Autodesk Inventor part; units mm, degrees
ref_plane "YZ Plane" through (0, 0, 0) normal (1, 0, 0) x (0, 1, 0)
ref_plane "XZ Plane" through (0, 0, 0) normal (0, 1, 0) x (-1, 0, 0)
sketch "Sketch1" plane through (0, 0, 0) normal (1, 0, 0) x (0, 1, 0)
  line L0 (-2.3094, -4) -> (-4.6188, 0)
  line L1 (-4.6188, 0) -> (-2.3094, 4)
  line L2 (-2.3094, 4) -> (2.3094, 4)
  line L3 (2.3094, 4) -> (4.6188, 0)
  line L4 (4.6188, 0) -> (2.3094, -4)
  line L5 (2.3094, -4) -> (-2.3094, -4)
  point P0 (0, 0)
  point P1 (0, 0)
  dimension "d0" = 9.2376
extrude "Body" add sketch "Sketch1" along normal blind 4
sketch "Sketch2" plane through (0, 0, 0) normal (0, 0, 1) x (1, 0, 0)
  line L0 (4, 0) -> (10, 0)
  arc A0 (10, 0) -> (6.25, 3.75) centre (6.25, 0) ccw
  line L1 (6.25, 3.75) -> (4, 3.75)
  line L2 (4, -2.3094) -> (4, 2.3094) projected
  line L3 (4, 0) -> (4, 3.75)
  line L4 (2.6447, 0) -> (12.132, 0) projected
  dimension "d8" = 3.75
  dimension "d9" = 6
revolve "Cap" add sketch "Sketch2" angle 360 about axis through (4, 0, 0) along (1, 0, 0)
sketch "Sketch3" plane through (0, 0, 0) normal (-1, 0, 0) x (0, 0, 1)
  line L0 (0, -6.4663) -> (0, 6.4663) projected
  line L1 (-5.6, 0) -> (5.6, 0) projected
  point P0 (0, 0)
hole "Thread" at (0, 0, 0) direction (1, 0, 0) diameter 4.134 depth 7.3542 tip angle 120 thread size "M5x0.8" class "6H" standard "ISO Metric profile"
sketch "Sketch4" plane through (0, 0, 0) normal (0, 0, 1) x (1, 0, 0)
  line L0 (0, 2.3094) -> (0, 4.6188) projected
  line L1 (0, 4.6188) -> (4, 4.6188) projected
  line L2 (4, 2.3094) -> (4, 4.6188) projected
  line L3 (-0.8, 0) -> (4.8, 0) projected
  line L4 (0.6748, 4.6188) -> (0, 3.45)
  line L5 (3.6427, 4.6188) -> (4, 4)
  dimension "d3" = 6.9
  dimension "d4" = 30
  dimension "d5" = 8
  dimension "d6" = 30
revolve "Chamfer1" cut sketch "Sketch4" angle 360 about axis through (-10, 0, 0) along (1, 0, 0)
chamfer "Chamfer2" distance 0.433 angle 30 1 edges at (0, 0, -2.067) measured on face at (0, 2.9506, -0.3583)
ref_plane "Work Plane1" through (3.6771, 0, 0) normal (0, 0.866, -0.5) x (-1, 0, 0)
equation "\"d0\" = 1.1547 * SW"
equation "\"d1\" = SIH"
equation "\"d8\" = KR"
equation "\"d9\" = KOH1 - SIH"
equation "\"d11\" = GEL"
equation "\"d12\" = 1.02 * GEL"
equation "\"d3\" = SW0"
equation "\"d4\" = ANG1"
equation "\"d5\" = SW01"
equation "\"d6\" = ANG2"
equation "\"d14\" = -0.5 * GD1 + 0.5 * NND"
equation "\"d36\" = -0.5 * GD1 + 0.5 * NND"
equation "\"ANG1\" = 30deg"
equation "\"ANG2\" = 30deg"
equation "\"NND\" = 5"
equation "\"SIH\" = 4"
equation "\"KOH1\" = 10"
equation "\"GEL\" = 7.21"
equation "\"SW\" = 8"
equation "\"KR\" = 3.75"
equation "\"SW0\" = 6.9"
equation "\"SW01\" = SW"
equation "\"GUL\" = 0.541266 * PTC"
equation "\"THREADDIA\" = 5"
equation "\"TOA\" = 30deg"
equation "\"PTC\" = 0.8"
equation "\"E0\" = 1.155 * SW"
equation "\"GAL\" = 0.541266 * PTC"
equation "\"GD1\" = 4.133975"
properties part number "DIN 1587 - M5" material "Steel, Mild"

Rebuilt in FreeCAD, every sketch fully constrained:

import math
import FreeCAD as App
import Part
import Sketcher
from FreeCAD import Vector
Q = App.Units.Quantity


def edges_at(feature, points):
    """Names of the edges that pass closest to the given points."""
    edges = feature.Shape.Edges
    near = lambda p: min(range(len(edges)), key=lambda i: edges[i].distToShape(Part.Vertex(*p))[0])
    return sorted({f"Edge{near(p) + 1}" for p in points})


def add_polygon(sketch, points):
    """Adds a closed chain of lines whose ends are joined by coincident constraints."""
    first, n = sketch.GeometryCount, len(points)
    for a, b in zip(points, points[1:] + points[:1]):
        sketch.addGeometry(Part.LineSegment(App.Vector(*a, 0), App.Vector(*b, 0)), False)
    for i in range(n):
        sketch.addConstraint(Sketcher.Constraint("Coincident", first + i, 2, first + (i + 1) % n, 1))

doc = App.newDocument("Part")
params = doc.addObject("Spreadsheet::Sheet", "Params")
for row, (alias, value) in enumerate([
    ("pad1_length", "4 mm"),
    ("sketch2_width", "6 mm"),
    ("sketch2_radius", "3.75 mm"),
    ("revolution_angle", "360 deg"),
    ("hole_diameter", "4.134 mm"),
    ("hole_depth", "7.3542 mm"),
    ("groove_angle", "360 deg"),
    ("chamfer_size", "0.433 mm"),
], start=1):
    params.set(f"A{row}", alias)
    params.set(f"B{row}", "=" + value)
    params.setAlias(f"B{row}", alias)

body = doc.addObject("PartDesign::Body", "Body")

sketch1 = body.newObject("Sketcher::SketchObject", "Sketch")
sketch1.AttachmentSupport = (doc.getObject("YZ_Plane"), [""])
sketch1.MapMode = "FlatFace"
add_polygon(sketch1, [(-4.6188, 0), (-2.3094, -4), (2.3094, -4), (4.6188, 0), (2.3094, 4), (-2.3094, 4)])
sketch1.addConstraint([
    Sketcher.Constraint("Horizontal", 1),
    Sketcher.Constraint("Horizontal", 4),
    Sketcher.Constraint("Symmetric", 0, 2, 3, 2, -1, 1),
    Sketcher.Constraint("Symmetric", 2, 2, 5, 2, -1, 1),
    Sketcher.Constraint("PointOnObject", 2, 2, -1),
    Sketcher.Constraint("Parallel", 2, 5),
    Sketcher.Constraint("Vertical", 1, 2, 3, 2),
    Sketcher.Constraint("Angle", 0, Q("-60 deg")),
    Sketcher.Constraint("DistanceY", 0, 2, -1, 1, Q("4 mm")),
    Sketcher.Constraint("DistanceX", 5, 2, 2, 2, Q("9.2376 mm")),
])
pad1 = body.newObject("PartDesign::Pad", "Pad")
pad1.Profile = sketch1
pad1.setExpression("Length", "Params.pad1_length")

sketch2 = body.newObject("Sketcher::SketchObject", "Sketch001")
sketch2.AttachmentSupport = (doc.getObject("XY_Plane"), [""])
sketch2.MapMode = "FlatFace"
sketch2.addGeometry([
    Part.LineSegment(Vector(4, 3.75, 0), Vector(4, 0, 0)),
    Part.LineSegment(Vector(4, 0, 0), Vector(10, 0, 0)),
    Part.ArcOfCircle(Part.Circle(Vector(6.25, 0, 0), Vector(0, 0, 1), 3.75), math.radians(0), math.radians(90)),
    Part.LineSegment(Vector(6.25, 3.75, 0), Vector(4, 3.75, 0)),
], False)
sketch2.addConstraint([
    Sketcher.Constraint("Coincident", 0, 2, 1, 1),
    Sketcher.Constraint("Coincident", 1, 2, 2, 1),
    Sketcher.Constraint("Tangent", 2, 2, 3, 1),
    Sketcher.Constraint("Coincident", 3, 2, 0, 1),
    Sketcher.Constraint("Vertical", 0),
    Sketcher.Constraint("Horizontal", 1),
    Sketcher.Constraint("Horizontal", 3),
    Sketcher.Constraint("PointOnObject", 2, 3, -1),
    Sketcher.Constraint("PointOnObject", 0, 2, -1),
    Sketcher.Constraint("DistanceX", 1, 1, 1, 2, Q("6 mm")),
    Sketcher.Constraint("Radius", 2, Q("3.75 mm")),
    Sketcher.Constraint("DistanceX", -1, 1, 0, 2, Q("4 mm")),
])
sketch2.setExpression("Constraints[9]", "Params.sketch2_width")
sketch2.setExpression("Constraints[10]", "Params.sketch2_radius")
revolution = body.newObject("PartDesign::Revolution", "Revolution")
revolution.Profile = sketch2
revolution.ReferenceAxis = (sketch2, ["H_Axis"])
revolution.setExpression("Angle", "Params.revolution_angle")

sketch3 = body.newObject("Sketcher::SketchObject", "Sketch002")
sketch3.AttachmentSupport = (doc.getObject("YZ_Plane"), [""])
sketch3.MapMode = "FlatFace"
sketch3.addGeometry(Part.Circle(Vector(0, 0, 0), Vector(0, 0, 1), 2.067), False)
sketch3.addConstraint([
    Sketcher.Constraint("Coincident", 0, 3, -1, 1),
    Sketcher.Constraint("Diameter", 0, Q("4.134 mm")),
])
doc.recompute()
hole = body.newObject("PartDesign::Hole", "Hole")
hole.Profile = sketch3
hole.ThreadType = "None"
hole.setExpression("Diameter", "Params.hole_diameter")
hole.DepthType = "Dimension"
hole.setExpression("Depth", "Params.hole_depth")
hole.DrillPoint = "Angled"
hole.DrillPointAngle = 120
hole.Reversed = True

sketch4 = body.newObject("Sketcher::SketchObject", "Sketch003")
sketch4.AttachmentSupport = (doc.getObject("XY_Plane"), [""])
sketch4.MapMode = "FlatFace"
add_polygon(sketch4, [(4, 4.6188), (3.6427, 4.6188), (4, 4)])
add_polygon(sketch4, [(0, 4.6188), (0, 3.45), (0.6748, 4.6188)])
sketch4.addConstraint([
    Sketcher.Constraint("Horizontal", 0),
    Sketcher.Constraint("Vertical", 2),
    Sketcher.Constraint("Vertical", 3),
    Sketcher.Constraint("Horizontal", 5),
    Sketcher.Constraint("PointOnObject", 3, 2, -2),
    Sketcher.Constraint("Horizontal", 2, 2, 4, 2),
    Sketcher.Constraint("Angle", 4, Q("60.0003 deg")),
    Sketcher.Constraint("DistanceX", -1, 1, 1, 2, Q("4 mm")),
    Sketcher.Constraint("DistanceY", -1, 1, 1, 2, Q("4 mm")),
    Sketcher.Constraint("DistanceY", -1, 1, 3, 2, Q("3.45 mm")),
    Sketcher.Constraint("DistanceX", 0, 2, 0, 1, Q("0.3573 mm")),
    Sketcher.Constraint("DistanceX", 5, 2, 5, 1, Q("0.6748 mm")),
])
groove = body.newObject("PartDesign::Groove", "Groove")
groove.Profile = sketch4
groove.ReferenceAxis = (sketch4, ["H_Axis"])
groove.setExpression("Angle", "Params.groove_angle")
doc.recompute()

chamfer = body.newObject("PartDesign::Chamfer", "Chamfer")
chamfer.Base = (groove, edges_at(groove, [(0, 0, -2.067)]))
chamfer.ChamferType = "Distance and Angle"
chamfer.setExpression("Size", "Params.chamfer_size")
chamfer.Angle = 30

doc.recompute()
